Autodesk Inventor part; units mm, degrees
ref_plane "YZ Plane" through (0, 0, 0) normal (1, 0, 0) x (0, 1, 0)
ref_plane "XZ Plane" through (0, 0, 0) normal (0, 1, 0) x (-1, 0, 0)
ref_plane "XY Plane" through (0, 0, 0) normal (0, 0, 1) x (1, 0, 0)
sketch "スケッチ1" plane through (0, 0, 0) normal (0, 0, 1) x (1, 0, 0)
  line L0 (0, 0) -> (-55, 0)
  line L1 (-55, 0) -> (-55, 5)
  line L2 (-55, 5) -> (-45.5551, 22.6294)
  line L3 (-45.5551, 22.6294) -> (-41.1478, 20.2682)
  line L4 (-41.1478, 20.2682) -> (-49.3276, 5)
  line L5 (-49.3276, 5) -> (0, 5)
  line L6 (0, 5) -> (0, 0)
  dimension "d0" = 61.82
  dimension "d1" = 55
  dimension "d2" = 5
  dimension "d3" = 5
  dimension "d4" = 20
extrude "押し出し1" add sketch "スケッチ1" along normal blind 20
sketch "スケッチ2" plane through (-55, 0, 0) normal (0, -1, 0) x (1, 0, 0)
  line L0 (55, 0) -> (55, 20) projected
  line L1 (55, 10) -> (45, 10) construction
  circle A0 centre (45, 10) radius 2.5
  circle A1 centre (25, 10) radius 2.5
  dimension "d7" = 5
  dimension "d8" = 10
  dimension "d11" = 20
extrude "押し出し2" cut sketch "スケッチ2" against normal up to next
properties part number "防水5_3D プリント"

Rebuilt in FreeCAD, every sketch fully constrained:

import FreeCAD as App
import Part
import Sketcher
from FreeCAD import Vector
Q = App.Units.Quantity

doc = App.newDocument("Part")
body = doc.addObject("PartDesign::Body", "Body")

# Sketch on XY plane
sketch1 = body.newObject("Sketcher::SketchObject", "Sketch")
sketch1.AttachmentSupport = (doc.getObject("XY_Plane"), [""])
sketch1.MapMode = "FlatFace"
sketch1.addGeometry(Part.LineSegment(Vector(-55, 0, 0), Vector(0, 0, 0)), False)
sketch1.addGeometry(Part.LineSegment(Vector(0, 0, 0), Vector(0, 5, 0)), False)
sketch1.addGeometry(Part.LineSegment(Vector(0, 5, 0), Vector(-49.3, 5, 0)), False)
sketch1.addGeometry(Part.LineSegment(Vector(-49.3, 5, 0), Vector(-41.1, 20.3, 0)), False)
sketch1.addGeometry(Part.LineSegment(Vector(-41.1, 20.3, 0), Vector(-45.6, 22.6, 0)), False)
sketch1.addGeometry(Part.LineSegment(Vector(-45.6, 22.6, 0), Vector(-55, 5, 0)), False)
sketch1.addGeometry(Part.LineSegment(Vector(-55, 5, 0), Vector(-55, 0, 0)), False)
sketch1.addConstraint(Sketcher.Constraint("Coincident", 0, 2, 1, 1))
sketch1.addConstraint(Sketcher.Constraint("Coincident", 1, 2, 2, 1))
sketch1.addConstraint(Sketcher.Constraint("Coincident", 2, 2, 3, 1))
sketch1.addConstraint(Sketcher.Constraint("Coincident", 3, 2, 4, 1))
sketch1.addConstraint(Sketcher.Constraint("Coincident", 4, 2, 5, 1))
sketch1.addConstraint(Sketcher.Constraint("Coincident", 5, 2, 6, 1))
sketch1.addConstraint(Sketcher.Constraint("Coincident", 6, 2, 0, 1))
sketch1.addConstraint(Sketcher.Constraint("Horizontal", 0))
sketch1.addConstraint(Sketcher.Constraint("Vertical", 1))
sketch1.addConstraint(Sketcher.Constraint("Horizontal", 2))
sketch1.addConstraint(Sketcher.Constraint("Vertical", 6))
sketch1.addConstraint(Sketcher.Constraint("Coincident", 0, 2, -1, 1))
sketch1.addConstraint(Sketcher.Constraint("Perpendicular", 3, 4))
sketch1.addConstraint(Sketcher.Constraint("Perpendicular", 4, 5))
sketch1.addConstraint(Sketcher.Constraint("Horizontal", 2, 2, 5, 2))
sketch1.addConstraint(Sketcher.Constraint("DistanceX", 0, 1, 0, 2, Q("55 mm")))
sketch1.addConstraint(Sketcher.Constraint("DistanceY", 1, 1, 1, 2, Q("5 mm")))
sketch1.addConstraint(Sketcher.Constraint("Distance", 4, Q("5 mm")))
sketch1.addConstraint(Sketcher.Constraint("Distance", 5, Q("20 mm")))
sketch1.addConstraint(Sketcher.Constraint("Angle", 3, Q("61.8202 deg")))
pad1 = body.newObject("PartDesign::Pad", "Pad")
pad1.Profile = sketch1
pad1.Length = 20

# Sketch on XZ plane
sketch2 = body.newObject("Sketcher::SketchObject", "Sketch001")
sketch2.AttachmentSupport = (doc.getObject("XZ_Plane"), [""])
sketch2.MapMode = "FlatFace"
sketch2.addGeometry(Part.Circle(Vector(-10, 10, 0), Vector(0, 0, 1), 2.5), False)
sketch2.addGeometry(Part.Circle(Vector(-30, 10, 0), Vector(0, 0, 1), 2.5), False)
sketch2.addConstraint(Sketcher.Constraint("Equal", 0, 1))
sketch2.addConstraint(Sketcher.Constraint("Horizontal", 0, 3, 1, 3))
sketch2.addConstraint(Sketcher.Constraint("Diameter", 0, Q("5 mm")))
sketch2.addConstraint(Sketcher.Constraint("DistanceX", 0, 3, -1, 1, Q("10 mm")))
sketch2.addConstraint(Sketcher.Constraint("DistanceY", -1, 1, 0, 3, Q("10 mm")))
sketch2.addConstraint(Sketcher.Constraint("DistanceX", 1, 3, 0, 3, Q("20 mm")))
pocket1 = body.newObject("PartDesign::Pocket", "Pocket")
pocket1.Profile = sketch2
pocket1.Type = "UpToFirst"

doc.recompute()
